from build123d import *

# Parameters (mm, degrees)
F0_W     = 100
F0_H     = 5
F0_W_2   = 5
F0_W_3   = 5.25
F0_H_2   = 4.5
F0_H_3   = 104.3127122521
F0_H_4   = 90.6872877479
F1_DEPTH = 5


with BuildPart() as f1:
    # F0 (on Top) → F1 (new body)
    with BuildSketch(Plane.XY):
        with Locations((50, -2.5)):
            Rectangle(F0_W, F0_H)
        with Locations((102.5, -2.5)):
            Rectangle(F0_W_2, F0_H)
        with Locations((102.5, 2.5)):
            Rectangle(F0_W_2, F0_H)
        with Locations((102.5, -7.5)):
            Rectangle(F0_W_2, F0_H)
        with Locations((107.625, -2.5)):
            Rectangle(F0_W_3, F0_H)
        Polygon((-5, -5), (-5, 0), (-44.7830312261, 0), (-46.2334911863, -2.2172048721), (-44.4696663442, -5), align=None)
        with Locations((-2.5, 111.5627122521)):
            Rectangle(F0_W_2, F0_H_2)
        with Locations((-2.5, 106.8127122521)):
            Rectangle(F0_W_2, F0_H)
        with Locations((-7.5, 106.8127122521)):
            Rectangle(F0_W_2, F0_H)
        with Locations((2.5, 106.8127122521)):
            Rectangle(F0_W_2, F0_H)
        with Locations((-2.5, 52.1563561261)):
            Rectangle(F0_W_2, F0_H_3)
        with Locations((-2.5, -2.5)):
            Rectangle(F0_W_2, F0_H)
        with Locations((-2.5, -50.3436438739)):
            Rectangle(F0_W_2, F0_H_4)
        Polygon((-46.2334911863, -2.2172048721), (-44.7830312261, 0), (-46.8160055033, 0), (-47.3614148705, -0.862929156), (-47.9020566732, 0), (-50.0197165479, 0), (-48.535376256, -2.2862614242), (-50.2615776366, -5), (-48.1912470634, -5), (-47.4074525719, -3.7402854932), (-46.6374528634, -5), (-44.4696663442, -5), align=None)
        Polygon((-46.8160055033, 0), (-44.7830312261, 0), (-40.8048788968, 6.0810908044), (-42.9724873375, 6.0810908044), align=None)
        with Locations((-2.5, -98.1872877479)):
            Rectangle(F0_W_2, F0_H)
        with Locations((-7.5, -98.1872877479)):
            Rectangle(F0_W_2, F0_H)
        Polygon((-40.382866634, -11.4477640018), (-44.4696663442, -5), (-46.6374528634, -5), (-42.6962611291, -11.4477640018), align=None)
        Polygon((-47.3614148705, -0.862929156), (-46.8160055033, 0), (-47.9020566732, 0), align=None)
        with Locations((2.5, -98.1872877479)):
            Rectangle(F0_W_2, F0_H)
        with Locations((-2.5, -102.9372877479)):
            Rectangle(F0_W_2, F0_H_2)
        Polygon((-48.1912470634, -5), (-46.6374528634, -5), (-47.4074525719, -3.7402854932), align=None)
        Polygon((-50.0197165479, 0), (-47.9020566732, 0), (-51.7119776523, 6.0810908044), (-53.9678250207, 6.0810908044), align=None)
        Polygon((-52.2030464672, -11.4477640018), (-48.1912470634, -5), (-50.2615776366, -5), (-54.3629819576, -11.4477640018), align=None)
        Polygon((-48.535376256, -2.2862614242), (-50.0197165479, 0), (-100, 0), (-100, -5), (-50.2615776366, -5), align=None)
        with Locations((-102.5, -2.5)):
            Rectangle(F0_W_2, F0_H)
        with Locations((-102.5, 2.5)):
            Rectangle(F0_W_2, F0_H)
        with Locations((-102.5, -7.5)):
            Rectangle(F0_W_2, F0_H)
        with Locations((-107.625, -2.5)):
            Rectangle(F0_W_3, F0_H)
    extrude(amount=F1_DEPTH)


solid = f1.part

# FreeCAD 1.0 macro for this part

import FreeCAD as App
import Part
import Sketcher
Q = App.Units.Quantity

doc = App.newDocument("Part")
body = doc.addObject("PartDesign::Body", "Body")

sketch1 = doc.addObject("Sketcher::SketchObject", "Sketch")
body.addObject(sketch1)
sketch1.AttachmentSupport = (doc.XY_Plane, [""])
sketch1.MapMode = "FlatFace"
sketch1.addGeometry(Part.LineSegment(App.Vector(100, -5, 0), App.Vector(100, -10, 0)), False)
sketch1.addGeometry(Part.LineSegment(App.Vector(100, -10, 0), App.Vector(105, -10, 0)), False)
sketch1.addGeometry(Part.LineSegment(App.Vector(105, -10, 0), App.Vector(105, -5, 0)), False)
sketch1.addGeometry(Part.LineSegment(App.Vector(105, -5, 0), App.Vector(110.25, -5, 0)), False)
sketch1.addGeometry(Part.LineSegment(App.Vector(110.25, -5, 0), App.Vector(110.25, 0, 0)), False)
sketch1.addGeometry(Part.LineSegment(App.Vector(110.25, 0, 0), App.Vector(105, 0, 0)), False)
sketch1.addGeometry(Part.LineSegment(App.Vector(105, 0, 0), App.Vector(105, 5, 0)), False)
sketch1.addGeometry(Part.LineSegment(App.Vector(105, 5, 0), App.Vector(100, 5, 0)), False)
sketch1.addGeometry(Part.LineSegment(App.Vector(100, 5, 0), App.Vector(100, 0, 0)), False)
sketch1.addGeometry(Part.LineSegment(App.Vector(100, 0, 0), App.Vector(0, 0, 0)), False)
sketch1.addGeometry(Part.LineSegment(App.Vector(0, 0, 0), App.Vector(0, 104.312712, 0)), False)
sketch1.addGeometry(Part.LineSegment(App.Vector(0, 104.312712, 0), App.Vector(5, 104.312712, 0)), False)
sketch1.addGeometry(Part.LineSegment(App.Vector(5, 104.312712, 0), App.Vector(5, 109.312712, 0)), False)
sketch1.addGeometry(Part.LineSegment(App.Vector(5, 109.312712, 0), App.Vector(0, 109.312712, 0)), False)
sketch1.addGeometry(Part.LineSegment(App.Vector(0, 109.312712, 0), App.Vector(0, 113.812712, 0)), False)
sketch1.addGeometry(Part.LineSegment(App.Vector(0, 113.812712, 0), App.Vector(-5, 113.812712, 0)), False)
sketch1.addGeometry(Part.LineSegment(App.Vector(-5, 113.812712, 0), App.Vector(-5, 109.312712, 0)), False)
sketch1.addGeometry(Part.LineSegment(App.Vector(-5, 109.312712, 0), App.Vector(-10, 109.312712, 0)), False)
sketch1.addGeometry(Part.LineSegment(App.Vector(-10, 109.312712, 0), App.Vector(-10, 104.312712, 0)), False)
sketch1.addGeometry(Part.LineSegment(App.Vector(-10, 104.312712, 0), App.Vector(-5, 104.312712, 0)), False)
sketch1.addGeometry(Part.LineSegment(App.Vector(-5, 104.312712, 0), App.Vector(-5, 0, 0)), False)
sketch1.addGeometry(Part.LineSegment(App.Vector(-5, 0, 0), App.Vector(-44.783031, 0, 0)), False)
sketch1.addGeometry(Part.LineSegment(App.Vector(-44.783031, 0, 0), App.Vector(-40.804879, 6.081091, 0)), False)
sketch1.addGeometry(Part.LineSegment(App.Vector(-40.804879, 6.081091, 0), App.Vector(-42.972487, 6.081091, 0)), False)
sketch1.addGeometry(Part.LineSegment(App.Vector(-42.972487, 6.081091, 0), App.Vector(-46.816006, 0, 0)), False)
sketch1.addGeometry(Part.LineSegment(App.Vector(-46.816006, 0, 0), App.Vector(-47.902057, 0, 0)), False)
sketch1.addGeometry(Part.LineSegment(App.Vector(-47.902057, 0, 0), App.Vector(-51.711978, 6.081091, 0)), False)
sketch1.addGeometry(Part.LineSegment(App.Vector(-51.711978, 6.081091, 0), App.Vector(-53.967825, 6.081091, 0)), False)
sketch1.addGeometry(Part.LineSegment(App.Vector(-53.967825, 6.081091, 0), App.Vector(-50.019717, 0, 0)), False)
sketch1.addGeometry(Part.LineSegment(App.Vector(-50.019717, 0, 0), App.Vector(-100, 0, 0)), False)
sketch1.addGeometry(Part.LineSegment(App.Vector(-100, 0, 0), App.Vector(-100, 5, 0)), False)
sketch1.addGeometry(Part.LineSegment(App.Vector(-100, 5, 0), App.Vector(-105, 5, 0)), False)
sketch1.addGeometry(Part.LineSegment(App.Vector(-105, 5, 0), App.Vector(-105, 0, 0)), False)
sketch1.addGeometry(Part.LineSegment(App.Vector(-105, 0, 0), App.Vector(-110.25, 0, 0)), False)
sketch1.addGeometry(Part.LineSegment(App.Vector(-110.25, 0, 0), App.Vector(-110.25, -5, 0)), False)
sketch1.addGeometry(Part.LineSegment(App.Vector(-110.25, -5, 0), App.Vector(-105, -5, 0)), False)
sketch1.addGeometry(Part.LineSegment(App.Vector(-105, -5, 0), App.Vector(-105, -10, 0)), False)
sketch1.addGeometry(Part.LineSegment(App.Vector(-105, -10, 0), App.Vector(-100, -10, 0)), False)
sketch1.addGeometry(Part.LineSegment(App.Vector(-100, -10, 0), App.Vector(-100, -5, 0)), False)
sketch1.addGeometry(Part.LineSegment(App.Vector(-100, -5, 0), App.Vector(-50.261578, -5, 0)), False)
sketch1.addGeometry(Part.LineSegment(App.Vector(-50.261578, -5, 0), App.Vector(-54.362982, -11.447764, 0)), False)
sketch1.addGeometry(Part.LineSegment(App.Vector(-54.362982, -11.447764, 0), App.Vector(-52.203046, -11.447764, 0)), False)
sketch1.addGeometry(Part.LineSegment(App.Vector(-52.203046, -11.447764, 0), App.Vector(-48.191247, -5, 0)), False)
sketch1.addGeometry(Part.LineSegment(App.Vector(-48.191247, -5, 0), App.Vector(-46.637453, -5, 0)), False)
sketch1.addGeometry(Part.LineSegment(App.Vector(-46.637453, -5, 0), App.Vector(-42.696261, -11.447764, 0)), False)
sketch1.addGeometry(Part.LineSegment(App.Vector(-42.696261, -11.447764, 0), App.Vector(-40.382867, -11.447764, 0)), False)
sketch1.addGeometry(Part.LineSegment(App.Vector(-40.382867, -11.447764, 0), App.Vector(-44.469666, -5, 0)), False)
sketch1.addGeometry(Part.LineSegment(App.Vector(-44.469666, -5, 0), App.Vector(-5, -5, 0)), False)
sketch1.addGeometry(Part.LineSegment(App.Vector(-5, -5, 0), App.Vector(-5, -95.687288, 0)), False)
sketch1.addGeometry(Part.LineSegment(App.Vector(-5, -95.687288, 0), App.Vector(-10, -95.687288, 0)), False)
sketch1.addGeometry(Part.LineSegment(App.Vector(-10, -95.687288, 0), App.Vector(-10, -100.687288, 0)), False)
sketch1.addGeometry(Part.LineSegment(App.Vector(-10, -100.687288, 0), App.Vector(-5, -100.687288, 0)), False)
sketch1.addGeometry(Part.LineSegment(App.Vector(-5, -100.687288, 0), App.Vector(-5, -105.187288, 0)), False)
sketch1.addGeometry(Part.LineSegment(App.Vector(-5, -105.187288, 0), App.Vector(0, -105.187288, 0)), False)
sketch1.addGeometry(Part.LineSegment(App.Vector(0, -105.187288, 0), App.Vector(0, -100.687288, 0)), False)
sketch1.addGeometry(Part.LineSegment(App.Vector(0, -100.687288, 0), App.Vector(5, -100.687288, 0)), False)
sketch1.addGeometry(Part.LineSegment(App.Vector(5, -100.687288, 0), App.Vector(5, -95.687288, 0)), False)
sketch1.addGeometry(Part.LineSegment(App.Vector(5, -95.687288, 0), App.Vector(0, -95.687288, 0)), False)
sketch1.addGeometry(Part.LineSegment(App.Vector(0, -95.687288, 0), App.Vector(0, -5, 0)), False)
sketch1.addGeometry(Part.LineSegment(App.Vector(0, -5, 0), App.Vector(100, -5, 0)), False)
sketch1.addConstraint(Sketcher.Constraint("Coincident", 0, 2, 1, 1))
sketch1.addConstraint(Sketcher.Constraint("Coincident", 1, 2, 2, 1))
sketch1.addConstraint(Sketcher.Constraint("Coincident", 2, 2, 3, 1))
sketch1.addConstraint(Sketcher.Constraint("Coincident", 3, 2, 4, 1))
sketch1.addConstraint(Sketcher.Constraint("Coincident", 4, 2, 5, 1))
sketch1.addConstraint(Sketcher.Constraint("Coincident", 5, 2, 6, 1))
sketch1.addConstraint(Sketcher.Constraint("Coincident", 6, 2, 7, 1))
sketch1.addConstraint(Sketcher.Constraint("Coincident", 7, 2, 8, 1))
sketch1.addConstraint(Sketcher.Constraint("Coincident", 8, 2, 9, 1))
sketch1.addConstraint(Sketcher.Constraint("Coincident", 9, 2, 10, 1))
sketch1.addConstraint(Sketcher.Constraint("Coincident", 10, 2, 11, 1))
sketch1.addConstraint(Sketcher.Constraint("Coincident", 11, 2, 12, 1))
sketch1.addConstraint(Sketcher.Constraint("Coincident", 12, 2, 13, 1))
sketch1.addConstraint(Sketcher.Constraint("Coincident", 13, 2, 14, 1))
sketch1.addConstraint(Sketcher.Constraint("Coincident", 14, 2, 15, 1))
sketch1.addConstraint(Sketcher.Constraint("Coincident", 15, 2, 16, 1))
sketch1.addConstraint(Sketcher.Constraint("Coincident", 16, 2, 17, 1))
sketch1.addConstraint(Sketcher.Constraint("Coincident", 17, 2, 18, 1))
sketch1.addConstraint(Sketcher.Constraint("Coincident", 18, 2, 19, 1))
sketch1.addConstraint(Sketcher.Constraint("Coincident", 19, 2, 20, 1))
sketch1.addConstraint(Sketcher.Constraint("Coincident", 20, 2, 21, 1))
sketch1.addConstraint(Sketcher.Constraint("Coincident", 21, 2, 22, 1))
sketch1.addConstraint(Sketcher.Constraint("Coincident", 22, 2, 23, 1))
sketch1.addConstraint(Sketcher.Constraint("Coincident", 23, 2, 24, 1))
sketch1.addConstraint(Sketcher.Constraint("Coincident", 24, 2, 25, 1))
sketch1.addConstraint(Sketcher.Constraint("Coincident", 25, 2, 26, 1))
sketch1.addConstraint(Sketcher.Constraint("Coincident", 26, 2, 27, 1))
sketch1.addConstraint(Sketcher.Constraint("Coincident", 27, 2, 28, 1))
sketch1.addConstraint(Sketcher.Constraint("Coincident", 28, 2, 29, 1))
sketch1.addConstraint(Sketcher.Constraint("Coincident", 29, 2, 30, 1))
sketch1.addConstraint(Sketcher.Constraint("Coincident", 30, 2, 31, 1))
sketch1.addConstraint(Sketcher.Constraint("Coincident", 31, 2, 32, 1))
sketch1.addConstraint(Sketcher.Constraint("Coincident", 32, 2, 33, 1))
sketch1.addConstraint(Sketcher.Constraint("Coincident", 33, 2, 34, 1))
sketch1.addConstraint(Sketcher.Constraint("Coincident", 34, 2, 35, 1))
sketch1.addConstraint(Sketcher.Constraint("Coincident", 35, 2, 36, 1))
sketch1.addConstraint(Sketcher.Constraint("Coincident", 36, 2, 37, 1))
sketch1.addConstraint(Sketcher.Constraint("Coincident", 37, 2, 38, 1))
sketch1.addConstraint(Sketcher.Constraint("Coincident", 38, 2, 39, 1))
sketch1.addConstraint(Sketcher.Constraint("Coincident", 39, 2, 40, 1))
sketch1.addConstraint(Sketcher.Constraint("Coincident", 40, 2, 41, 1))
sketch1.addConstraint(Sketcher.Constraint("Coincident", 41, 2, 42, 1))
sketch1.addConstraint(Sketcher.Constraint("Coincident", 42, 2, 43, 1))
sketch1.addConstraint(Sketcher.Constraint("Coincident", 43, 2, 44, 1))
sketch1.addConstraint(Sketcher.Constraint("Coincident", 44, 2, 45, 1))
sketch1.addConstraint(Sketcher.Constraint("Coincident", 45, 2, 46, 1))
sketch1.addConstraint(Sketcher.Constraint("Coincident", 46, 2, 47, 1))
sketch1.addConstraint(Sketcher.Constraint("Coincident", 47, 2, 48, 1))
sketch1.addConstraint(Sketcher.Constraint("Coincident", 48, 2, 49, 1))
sketch1.addConstraint(Sketcher.Constraint("Coincident", 49, 2, 50, 1))
sketch1.addConstraint(Sketcher.Constraint("Coincident", 50, 2, 51, 1))
sketch1.addConstraint(Sketcher.Constraint("Coincident", 51, 2, 52, 1))
sketch1.addConstraint(Sketcher.Constraint("Coincident", 52, 2, 53, 1))
sketch1.addConstraint(Sketcher.Constraint("Coincident", 53, 2, 54, 1))
sketch1.addConstraint(Sketcher.Constraint("Coincident", 54, 2, 55, 1))
sketch1.addConstraint(Sketcher.Constraint("Coincident", 55, 2, 56, 1))
sketch1.addConstraint(Sketcher.Constraint("Coincident", 56, 2, 57, 1))
sketch1.addConstraint(Sketcher.Constraint("Coincident", 57, 2, 58, 1))
sketch1.addConstraint(Sketcher.Constraint("Coincident", 58, 2, 59, 1))
sketch1.addConstraint(Sketcher.Constraint("Coincident", 59, 2, 0, 1))
sketch1.addConstraint(Sketcher.Constraint("Vertical", 0))
sketch1.addConstraint(Sketcher.Constraint("Horizontal", 1))
sketch1.addConstraint(Sketcher.Constraint("Vertical", 2))
sketch1.addConstraint(Sketcher.Constraint("Horizontal", 3))
sketch1.addConstraint(Sketcher.Constraint("Vertical", 4))
sketch1.addConstraint(Sketcher.Constraint("Horizontal", 5))
sketch1.addConstraint(Sketcher.Constraint("Vertical", 6))
sketch1.addConstraint(Sketcher.Constraint("Horizontal", 7))
sketch1.addConstraint(Sketcher.Constraint("Vertical", 8))
sketch1.addConstraint(Sketcher.Constraint("Horizontal", 9))
sketch1.addConstraint(Sketcher.Constraint("Vertical", 10))
sketch1.addConstraint(Sketcher.Constraint("Horizontal", 11))
sketch1.addConstraint(Sketcher.Constraint("Vertical", 12))
sketch1.addConstraint(Sketcher.Constraint("Horizontal", 13))
sketch1.addConstraint(Sketcher.Constraint("Vertical", 14))
sketch1.addConstraint(Sketcher.Constraint("Horizontal", 15))
sketch1.addConstraint(Sketcher.Constraint("Vertical", 16))
sketch1.addConstraint(Sketcher.Constraint("Horizontal", 17))
sketch1.addConstraint(Sketcher.Constraint("Vertical", 18))
sketch1.addConstraint(Sketcher.Constraint("Horizontal", 19))
sketch1.addConstraint(Sketcher.Constraint("Vertical", 20))
sketch1.addConstraint(Sketcher.Constraint("Horizontal", 21))
sketch1.addConstraint(Sketcher.Constraint("Horizontal", 23))
sketch1.addConstraint(Sketcher.Constraint("Horizontal", 25))
sketch1.addConstraint(Sketcher.Constraint("Horizontal", 27))
sketch1.addConstraint(Sketcher.Constraint("Horizontal", 29))
sketch1.addConstraint(Sketcher.Constraint("Vertical", 30))
sketch1.addConstraint(Sketcher.Constraint("Horizontal", 31))
sketch1.addConstraint(Sketcher.Constraint("Vertical", 32))
sketch1.addConstraint(Sketcher.Constraint("Horizontal", 33))
sketch1.addConstraint(Sketcher.Constraint("Vertical", 34))
sketch1.addConstraint(Sketcher.Constraint("Horizontal", 35))
sketch1.addConstraint(Sketcher.Constraint("Vertical", 36))
sketch1.addConstraint(Sketcher.Constraint("Horizontal", 37))
sketch1.addConstraint(Sketcher.Constraint("Vertical", 38))
sketch1.addConstraint(Sketcher.Constraint("Horizontal", 39))
sketch1.addConstraint(Sketcher.Constraint("Horizontal", 41))
sketch1.addConstraint(Sketcher.Constraint("Horizontal", 43))
sketch1.addConstraint(Sketcher.Constraint("Horizontal", 45))
sketch1.addConstraint(Sketcher.Constraint("Horizontal", 47))
sketch1.addConstraint(Sketcher.Constraint("Vertical", 48))
sketch1.addConstraint(Sketcher.Constraint("Horizontal", 49))
sketch1.addConstraint(Sketcher.Constraint("Vertical", 50))
sketch1.addConstraint(Sketcher.Constraint("Horizontal", 51))
sketch1.addConstraint(Sketcher.Constraint("Vertical", 52))
sketch1.addConstraint(Sketcher.Constraint("Horizontal", 53))
sketch1.addConstraint(Sketcher.Constraint("Vertical", 54))
sketch1.addConstraint(Sketcher.Constraint("Horizontal", 55))
sketch1.addConstraint(Sketcher.Constraint("Vertical", 56))
sketch1.addConstraint(Sketcher.Constraint("Horizontal", 57))
sketch1.addConstraint(Sketcher.Constraint("Vertical", 58))
sketch1.addConstraint(Sketcher.Constraint("Horizontal", 59))
sketch1.addConstraint(Sketcher.Constraint("Coincident", 9, 2, -1, 1))
sketch1.addConstraint(Sketcher.Constraint("Symmetric", 8, 2, 29, 2, -1, 1))
sketch1.addConstraint(Sketcher.Constraint("Symmetric", 2, 2, 31, 2, -1, 1))
sketch1.addConstraint(Sketcher.Constraint("Symmetric", 5, 2, 32, 2, -1, 1))
sketch1.addConstraint(Sketcher.Constraint("Symmetric", 6, 2, 35, 2, -1, 1))
sketch1.addConstraint(Sketcher.Constraint("Symmetric", 7, 2, 38, 2, -1, 1))
sketch1.addConstraint(Sketcher.Constraint("Symmetric", 30, 2, 59, 2, -1, 1))
sketch1.addConstraint(Sketcher.Constraint("Symmetric", 12, 2, 16, 2, -2))
sketch1.addConstraint(Sketcher.Constraint("Symmetric", 11, 2, 19, 2, -2))
sketch1.addConstraint(Sketcher.Constraint("Symmetric", 4, 2, 33, 2, -2))
sketch1.addConstraint(Sketcher.Constraint("Symmetric", 51, 2, 55, 2, -2))
sketch1.addConstraint(Sketcher.Constraint("Symmetric", 48, 2, 56, 2, -2))
sketch1.addConstraint(Sketcher.Constraint("PointOnObject", 13, 2, -2))
sketch1.addConstraint(Sketcher.Constraint("PointOnObject", 20, 2, -1))
sketch1.addConstraint(Sketcher.Constraint("PointOnObject", 24, 2, -1))
sketch1.addConstraint(Sketcher.Constraint("PointOnObject", 53, 2, -2))
sketch1.addConstraint(Sketcher.Constraint("PointOnObject", 57, 2, -2))
sketch1.addConstraint(Sketcher.Constraint("Horizontal", 23, 2, 26, 2))
sketch1.addConstraint(Sketcher.Constraint("Horizontal", 7, 2, 30, 2))
sketch1.addConstraint(Sketcher.Constraint("Horizontal", 1, 2, 36, 2))
sketch1.addConstraint(Sketcher.Constraint("Horizontal", 39, 2, 42, 2))
sketch1.addConstraint(Sketcher.Constraint("Horizontal", 41, 2, 44, 2))
sketch1.addConstraint(Sketcher.Constraint("Horizontal", 43, 2, 46, 2))
sketch1.addConstraint(Sketcher.Constraint("Vertical", 20, 2, 47, 2))
sketch1.addConstraint(Sketcher.Constraint("Vertical", 18, 2, 49, 2))
sketch1.addConstraint(Sketcher.Constraint("Equal", 7, 11))
sketch1.addConstraint(Sketcher.Constraint("Equal", 15, 17))
sketch1.addConstraint(Sketcher.Constraint("Equal", 57, 0))
sketch1.addConstraint(Sketcher.Constraint("Equal", 2, 4))
sketch1.addConstraint(Sketcher.Constraint("Equal", 8, 12))
sketch1.addConstraint(Sketcher.Constraint("Equal", 38, 50))
sketch1.addConstraint(Sketcher.Constraint("Equal", 16, 52))
sketch1.addConstraint(Sketcher.Constraint("DistanceX", 1, 1, 1, 2, Q("5 mm")))
sketch1.addConstraint(Sketcher.Constraint("DistanceX", 9, 2, 9, 1, Q("100 mm")))
sketch1.addConstraint(Sketcher.Constraint("DistanceY", 14, 1, 14, 2, Q("4.5 mm")))
sketch1.addConstraint(Sketcher.Constraint("DistanceX", 3, 1, 3, 2, Q("5.25 mm")))
sketch1.addConstraint(Sketcher.Constraint("DistanceX", 21, 2, 21, 1, Q("39.783031 mm")))
sketch1.addConstraint(Sketcher.Constraint("DistanceX", 23, 2, 23, 1, Q("2.167608 mm")))
sketch1.addConstraint(Sketcher.Constraint("DistanceX", 25, 2, 25, 1, Q("1.086051 mm")))
sketch1.addConstraint(Sketcher.Constraint("DistanceX", 26, 2, 22, 2, Q("10.907099 mm")))
sketch1.addConstraint(Sketcher.Constraint("DistanceX", 26, 2, 39, 2, Q("1.4504 mm")))
sketch1.addConstraint(Sketcher.Constraint("Distance", 22, Q("7.26673 mm")))
sketch1.addConstraint(Sketcher.Constraint("DistanceX", 27, 2, 27, 1, Q("2.255847 mm")))
sketch1.addConstraint(Sketcher.Constraint("DistanceX", 29, 2, 29, 1, Q("49.980283 mm")))
sketch1.addConstraint(Sketcher.Constraint("DistanceX", 39, 1, 39, 2, Q("49.738422 mm")))
sketch1.addConstraint(Sketcher.Constraint("DistanceX", 41, 1, 41, 2, Q("2.159935 mm")))
sketch1.addConstraint(Sketcher.Constraint("DistanceX", 43, 1, 43, 2, Q("1.553794 mm")))
sketch1.addConstraint(Sketcher.Constraint("DistanceX", 45, 1, 45, 2, Q("2.313394 mm")))
sketch1.addConstraint(Sketcher.Constraint("DistanceX", 47, 1, 47, 2, Q("39.469666 mm")))
sketch1.addConstraint(Sketcher.Constraint("DistanceY", 10, 1, 10, 2, Q("104.312712 mm")))
sketch1.addConstraint(Sketcher.Constraint("DistanceY", 48, 2, 48, 1, Q("90.687288 mm")))
sketch1.addConstraint(Sketcher.Constraint("DistanceX", 40, 2, -1, 1, Q("54.362982 mm")))
sketch1.addConstraint(Sketcher.Constraint("DistanceX", 44, 2, -1, 1, Q("42.696261 mm")))
sketch1.addConstraint(Sketcher.Constraint("DistanceX", 24, 2, 23, 2, Q("3.843518 mm")))
sketch1.addConstraint(Sketcher.Constraint("DistanceX", 39, 2, 42, 2, Q("2.070331 mm")))
sketch1.addConstraint(Sketcher.Constraint("Distance", 40, Q("7.641674 mm")))
pad1 = doc.addObject("PartDesign::Pad", "Pad")
body.addObject(pad1)
pad1.Profile = sketch1
pad1.Length = 5

doc.recompute()
